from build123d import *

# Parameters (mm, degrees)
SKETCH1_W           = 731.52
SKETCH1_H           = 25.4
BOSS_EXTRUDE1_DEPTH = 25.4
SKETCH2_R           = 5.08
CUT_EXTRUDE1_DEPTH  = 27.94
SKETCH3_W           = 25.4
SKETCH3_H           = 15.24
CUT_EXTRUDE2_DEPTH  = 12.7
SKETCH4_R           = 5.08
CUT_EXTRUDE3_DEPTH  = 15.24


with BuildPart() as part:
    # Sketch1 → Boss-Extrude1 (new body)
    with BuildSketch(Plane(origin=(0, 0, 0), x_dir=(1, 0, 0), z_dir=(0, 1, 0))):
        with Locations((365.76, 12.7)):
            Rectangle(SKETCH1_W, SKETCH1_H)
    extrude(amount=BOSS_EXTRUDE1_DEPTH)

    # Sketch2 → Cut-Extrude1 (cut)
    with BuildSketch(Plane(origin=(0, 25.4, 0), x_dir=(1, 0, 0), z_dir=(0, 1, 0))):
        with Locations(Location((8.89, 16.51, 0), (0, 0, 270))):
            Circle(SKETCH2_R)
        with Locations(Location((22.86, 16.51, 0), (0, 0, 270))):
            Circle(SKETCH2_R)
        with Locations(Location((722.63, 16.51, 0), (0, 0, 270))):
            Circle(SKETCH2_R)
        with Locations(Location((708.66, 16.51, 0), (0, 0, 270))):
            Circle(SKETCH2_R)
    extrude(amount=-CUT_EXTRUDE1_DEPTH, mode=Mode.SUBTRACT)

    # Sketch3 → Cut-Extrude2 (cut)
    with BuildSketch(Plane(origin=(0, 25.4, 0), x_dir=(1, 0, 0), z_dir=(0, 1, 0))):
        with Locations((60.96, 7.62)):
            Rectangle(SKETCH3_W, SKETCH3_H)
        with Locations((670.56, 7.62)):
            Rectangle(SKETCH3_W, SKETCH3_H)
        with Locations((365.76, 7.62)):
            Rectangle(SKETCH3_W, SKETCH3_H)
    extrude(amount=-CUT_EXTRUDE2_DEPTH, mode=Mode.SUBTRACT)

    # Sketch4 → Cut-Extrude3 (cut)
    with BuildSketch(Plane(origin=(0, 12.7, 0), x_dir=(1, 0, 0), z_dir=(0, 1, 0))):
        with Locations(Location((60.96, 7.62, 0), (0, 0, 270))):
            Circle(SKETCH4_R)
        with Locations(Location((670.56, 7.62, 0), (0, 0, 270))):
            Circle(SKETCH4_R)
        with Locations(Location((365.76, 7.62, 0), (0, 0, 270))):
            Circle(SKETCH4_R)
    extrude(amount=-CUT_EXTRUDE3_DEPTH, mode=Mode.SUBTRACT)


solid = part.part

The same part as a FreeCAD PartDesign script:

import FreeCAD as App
import Part
import Sketcher

V = App.Vector
Q = App.Units.Quantity

doc = App.newDocument("Part")
params = doc.addObject("Spreadsheet::Sheet", "Params")
for row, (alias, value) in enumerate([
    ("sketch1_height", "1 in"),
    ("sketch1_width", "28.8 in"),
    ("pad1_length", "1 in"),
    ("sketch2_diameter", "0.4 in"),
    ("pocket1_length", "1.1 in"),
    ("sketch3_width", "1 in"),
    ("sketch3_height", "0.6 in"),
    ("pocket2_length", "0.5 in"),
    ("sketch4_diameter", "0.4 in"),
    ("pocket3_length", "0.6 in"),
], start=1):
    params.set(f"A{row}", alias)
    params.set(f"B{row}", "=" + value)
    params.setAlias(f"B{row}", alias)

body = doc.addObject("PartDesign::Body", "Body")

# Sketch on XZ plane
sketch1 = body.newObject("Sketcher::SketchObject", "Sketch")
sketch1.AttachmentSupport = (doc.getObject("XZ_Plane"), [""])
sketch1.MapMode = "FlatFace"
sketch1.addGeometry(Part.LineSegment(V(0, -25.4, 0), V(0, 0, 0)), False)
sketch1.addGeometry(Part.LineSegment(V(0, 0, 0), V(731.52, 0, 0)), False)
sketch1.addGeometry(Part.LineSegment(V(731.52, 0, 0), V(731.52, -25.4, 0)), False)
sketch1.addGeometry(Part.LineSegment(V(731.52, -25.4, 0), V(0, -25.4, 0)), False)
sketch1.addConstraint(Sketcher.Constraint("Coincident", 0, 2, 1, 1))
sketch1.addConstraint(Sketcher.Constraint("Coincident", 1, 2, 2, 1))
sketch1.addConstraint(Sketcher.Constraint("Coincident", 2, 2, 3, 1))
sketch1.addConstraint(Sketcher.Constraint("Coincident", 3, 2, 0, 1))
sketch1.addConstraint(Sketcher.Constraint("Vertical", 0))
sketch1.addConstraint(Sketcher.Constraint("Horizontal", 1))
sketch1.addConstraint(Sketcher.Constraint("Vertical", 2))
sketch1.addConstraint(Sketcher.Constraint("Horizontal", 3))
sketch1.addConstraint(Sketcher.Constraint("Coincident", 0, 2, -1, 1))
sketch1.addConstraint(Sketcher.Constraint("DistanceY", 0, 1, 0, 2, Q("1 in")))
sketch1.addConstraint(Sketcher.Constraint("DistanceX", 1, 1, 1, 2, Q("28.8 in")))
sketch1.setExpression("Constraints[9]", "Params.sketch1_height")
sketch1.setExpression("Constraints[10]", "Params.sketch1_width")
pad1 = body.newObject("PartDesign::Pad", "Pad")
pad1.Profile = sketch1
pad1.setExpression("Length", "Params.pad1_length")
pad1.Reversed = True

# Sketch on XZ plane
sketch2 = body.newObject("Sketcher::SketchObject", "Sketch001")
sketch2.AttachmentSupport = (doc.getObject("XZ_Plane"), [""])
sketch2.MapMode = "FlatFace"
sketch2.AttachmentOffset = App.Placement(V(0, 0, -1 * 25.4), App.Rotation())
sketch2.addGeometry(Part.Circle(V(8.89, -16.51, 0), V(0, 0, 1), 5.08), False)
sketch2.addGeometry(Part.Circle(V(22.86, -16.51, 0), V(0, 0, 1), 5.08), False)
sketch2.addGeometry(Part.Circle(V(722.63, -16.51, 0), V(0, 0, 1), 5.08), False)
sketch2.addGeometry(Part.Circle(V(708.66, -16.51, 0), V(0, 0, 1), 5.08), False)
sketch2.addConstraint(Sketcher.Constraint("Equal", 0, 1))
sketch2.addConstraint(Sketcher.Constraint("Equal", 1, 2))
sketch2.addConstraint(Sketcher.Constraint("Equal", 2, 3))
sketch2.addConstraint(Sketcher.Constraint("Horizontal", 0, 3, 1, 3))
sketch2.addConstraint(Sketcher.Constraint("Horizontal", 1, 3, 2, 3))
sketch2.addConstraint(Sketcher.Constraint("Horizontal", 2, 3, 3, 3))
sketch2.addConstraint(Sketcher.Constraint("Diameter", 0, Q("0.4 in")))
sketch2.addConstraint(Sketcher.Constraint("DistanceX", 1, 3, 3, 3, Q("27 in")))
sketch2.addConstraint(Sketcher.Constraint("DistanceX", -1, 1, 1, 3, Q("0.9 in")))
sketch2.addConstraint(Sketcher.Constraint("DistanceX", 0, 3, 2, 3, Q("28.1 in")))
sketch2.addConstraint(Sketcher.Constraint("DistanceX", -1, 1, 0, 3, Q("0.35 in")))
sketch2.addConstraint(Sketcher.Constraint("DistanceY", 0, 3, -1, 1, Q("0.65 in")))
sketch2.setExpression("Constraints[6]", "Params.sketch2_diameter")
pocket1 = body.newObject("PartDesign::Pocket", "Pocket")
pocket1.Profile = sketch2
pocket1.setExpression("Length", "Params.pocket1_length")
pocket1.Reversed = True

# Sketch on XZ plane
sketch3 = body.newObject("Sketcher::SketchObject", "Sketch002")
sketch3.AttachmentSupport = (doc.getObject("XZ_Plane"), [""])
sketch3.MapMode = "FlatFace"
sketch3.AttachmentOffset = App.Placement(V(0, 0, -1 * 25.4), App.Rotation())
sketch3.addGeometry(Part.LineSegment(V(48.26, -15.24, 0), V(48.26, 0, 0)), False)
sketch3.addGeometry(Part.LineSegment(V(48.26, 0, 0), V(73.66, 0, 0)), False)
sketch3.addGeometry(Part.LineSegment(V(73.66, 0, 0), V(73.66, -15.24, 0)), False)
sketch3.addGeometry(Part.LineSegment(V(73.66, -15.24, 0), V(48.26, -15.24, 0)), False)
sketch3.addGeometry(Part.LineSegment(V(657.86, -15.24, 0), V(657.86, 0, 0)), False)
sketch3.addGeometry(Part.LineSegment(V(657.86, 0, 0), V(683.26, 0, 0)), False)
sketch3.addGeometry(Part.LineSegment(V(683.26, 0, 0), V(683.26, -15.24, 0)), False)
sketch3.addGeometry(Part.LineSegment(V(683.26, -15.24, 0), V(657.86, -15.24, 0)), False)
sketch3.addGeometry(Part.LineSegment(V(353.06, -15.24, 0), V(353.06, 0, 0)), False)
sketch3.addGeometry(Part.LineSegment(V(353.06, 0, 0), V(378.46, 0, 0)), False)
sketch3.addGeometry(Part.LineSegment(V(378.46, 0, 0), V(378.46, -15.24, 0)), False)
sketch3.addGeometry(Part.LineSegment(V(378.46, -15.24, 0), V(353.06, -15.24, 0)), False)
sketch3.addConstraint(Sketcher.Constraint("Coincident", 0, 2, 1, 1))
sketch3.addConstraint(Sketcher.Constraint("Coincident", 1, 2, 2, 1))
sketch3.addConstraint(Sketcher.Constraint("Coincident", 2, 2, 3, 1))
sketch3.addConstraint(Sketcher.Constraint("Coincident", 3, 2, 0, 1))
sketch3.addConstraint(Sketcher.Constraint("Coincident", 4, 2, 5, 1))
sketch3.addConstraint(Sketcher.Constraint("Coincident", 5, 2, 6, 1))
sketch3.addConstraint(Sketcher.Constraint("Coincident", 6, 2, 7, 1))
sketch3.addConstraint(Sketcher.Constraint("Coincident", 7, 2, 4, 1))
sketch3.addConstraint(Sketcher.Constraint("Coincident", 8, 2, 9, 1))
sketch3.addConstraint(Sketcher.Constraint("Coincident", 9, 2, 10, 1))
sketch3.addConstraint(Sketcher.Constraint("Coincident", 10, 2, 11, 1))
sketch3.addConstraint(Sketcher.Constraint("Coincident", 11, 2, 8, 1))
sketch3.addConstraint(Sketcher.Constraint("Vertical", 0))
sketch3.addConstraint(Sketcher.Constraint("Horizontal", 1))
sketch3.addConstraint(Sketcher.Constraint("Vertical", 2))
sketch3.addConstraint(Sketcher.Constraint("Horizontal", 3))
sketch3.addConstraint(Sketcher.Constraint("Vertical", 4))
sketch3.addConstraint(Sketcher.Constraint("Horizontal", 5))
sketch3.addConstraint(Sketcher.Constraint("Vertical", 6))
sketch3.addConstraint(Sketcher.Constraint("Horizontal", 7))
sketch3.addConstraint(Sketcher.Constraint("Vertical", 8))
sketch3.addConstraint(Sketcher.Constraint("Horizontal", 9))
sketch3.addConstraint(Sketcher.Constraint("Vertical", 10))
sketch3.addConstraint(Sketcher.Constraint("Horizontal", 11))
sketch3.addConstraint(Sketcher.Constraint("PointOnObject", 0, 2, -1))
sketch3.addConstraint(Sketcher.Constraint("PointOnObject", 4, 2, -1))
sketch3.addConstraint(Sketcher.Constraint("PointOnObject", 8, 2, -1))
sketch3.addConstraint(Sketcher.Constraint("Horizontal", 3, 2, 6, 2))
sketch3.addConstraint(Sketcher.Constraint("Horizontal", 7, 2, 10, 2))
sketch3.addConstraint(Sketcher.Constraint("Equal", 3, 5))
sketch3.addConstraint(Sketcher.Constraint("Equal", 7, 9))
sketch3.addConstraint(Sketcher.Constraint("DistanceX", 1, 1, 1, 2, Q("1 in")))
sketch3.addConstraint(Sketcher.Constraint("DistanceY", 0, 1, 0, 2, Q("0.6 in")))
sketch3.addConstraint(Sketcher.Constraint("DistanceX", 1, 2, 4, 2, Q("23 in")))
sketch3.addConstraint(Sketcher.Constraint("DistanceX", 1, 2, 8, 2, Q("11 in")))
sketch3.addConstraint(Sketcher.Constraint("DistanceX", -1, 1, 0, 2, Q("1.9 in")))
sketch3.setExpression("Constraints[31]", "Params.sketch3_width")
sketch3.setExpression("Constraints[32]", "Params.sketch3_height")
pocket2 = body.newObject("PartDesign::Pocket", "Pocket001")
pocket2.Profile = sketch3
pocket2.setExpression("Length", "Params.pocket2_length")
pocket2.Reversed = True

# Sketch on XZ plane
sketch4 = body.newObject("Sketcher::SketchObject", "Sketch003")
sketch4.AttachmentSupport = (doc.getObject("XZ_Plane"), [""])
sketch4.MapMode = "FlatFace"
sketch4.AttachmentOffset = App.Placement(V(0, 0, -0.5 * 25.4), App.Rotation())
sketch4.addGeometry(Part.Circle(V(60.96, -7.62, 0), V(0, 0, 1), 5.08), False)
sketch4.addGeometry(Part.Circle(V(670.56, -7.62, 0), V(0, 0, 1), 5.08), False)
sketch4.addGeometry(Part.Circle(V(365.76, -7.62, 0), V(0, 0, 1), 5.08), False)
sketch4.addConstraint(Sketcher.Constraint("Equal", 0, 1))
sketch4.addConstraint(Sketcher.Constraint("Equal", 1, 2))
sketch4.addConstraint(Sketcher.Constraint("Horizontal", 0, 3, 1, 3))
sketch4.addConstraint(Sketcher.Constraint("Horizontal", 1, 3, 2, 3))
sketch4.addConstraint(Sketcher.Constraint("Diameter", 0, Q("0.4 in")))
sketch4.addConstraint(Sketcher.Constraint("DistanceX", 0, 3, 1, 3, Q("24 in")))
sketch4.addConstraint(Sketcher.Constraint("DistanceX", 2, 3, 1, 3, Q("12 in")))
sketch4.addConstraint(Sketcher.Constraint("DistanceX", -1, 1, 0, 3, Q("2.4 in")))
sketch4.addConstraint(Sketcher.Constraint("DistanceY", 0, 3, -1, 1, Q("0.3 in")))
sketch4.setExpression("Constraints[4]", "Params.sketch4_diameter")
pocket3 = body.newObject("PartDesign::Pocket", "Pocket002")
pocket3.Profile = sketch4
pocket3.setExpression("Length", "Params.pocket3_length")
pocket3.Reversed = True

doc.recompute()
